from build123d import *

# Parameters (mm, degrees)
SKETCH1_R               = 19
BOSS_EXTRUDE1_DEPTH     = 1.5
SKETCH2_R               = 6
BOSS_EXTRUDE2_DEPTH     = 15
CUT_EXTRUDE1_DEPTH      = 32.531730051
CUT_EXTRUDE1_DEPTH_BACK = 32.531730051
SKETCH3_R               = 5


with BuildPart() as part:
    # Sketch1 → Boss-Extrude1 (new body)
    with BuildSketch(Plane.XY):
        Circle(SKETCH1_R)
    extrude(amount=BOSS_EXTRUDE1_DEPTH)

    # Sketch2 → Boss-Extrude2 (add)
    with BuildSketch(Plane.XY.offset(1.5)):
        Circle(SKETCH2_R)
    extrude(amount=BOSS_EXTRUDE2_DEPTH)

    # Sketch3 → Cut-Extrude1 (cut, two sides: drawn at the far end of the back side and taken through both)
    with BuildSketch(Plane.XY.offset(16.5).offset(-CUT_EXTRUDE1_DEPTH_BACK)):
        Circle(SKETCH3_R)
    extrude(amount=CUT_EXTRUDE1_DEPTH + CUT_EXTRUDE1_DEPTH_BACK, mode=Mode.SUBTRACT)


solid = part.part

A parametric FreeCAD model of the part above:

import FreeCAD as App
import Part
import Sketcher
from FreeCAD import Vector

doc = App.newDocument("Part")
body = doc.addObject("PartDesign::Body", "Body")

# Sketch on XY plane
sketch1 = doc.addObject("Sketcher::SketchObject", "Sketch")
body.addObject(sketch1)
sketch1.AttachmentSupport = (doc.XY_Plane, [""])
sketch1.MapMode = "FlatFace"
sketch1.addGeometry(Part.Circle(Vector(0, 0, 0), Vector(0, 0, 1), 19), False)
sketch1.addConstraint([
    Sketcher.Constraint("Coincident", 0, 3, -1, 1),
    Sketcher.Constraint("Diameter", 0, 38.0),
])
pad1 = doc.addObject("PartDesign::Pad", "Pad")
body.addObject(pad1)
pad1.Profile = sketch1
pad1.Length = 1.5

# Sketch on XY plane
sketch2 = doc.addObject("Sketcher::SketchObject", "Sketch001")
body.addObject(sketch2)
sketch2.AttachmentSupport = (doc.XY_Plane, [""])
sketch2.MapMode = "FlatFace"
sketch2.AttachmentOffset = App.Placement(Vector(0, 0, 1.5), App.Rotation())
sketch2.addGeometry(Part.Circle(Vector(0, 0, 0), Vector(0, 0, 1), 6), False)
sketch2.addConstraint([
    Sketcher.Constraint("Coincident", 0, 3, -1, 1),
    Sketcher.Constraint("Diameter", 0, 12.0),
])
pad2 = doc.addObject("PartDesign::Pad", "Pad001")
body.addObject(pad2)
pad2.Profile = sketch2
pad2.Length = 15

# Sketch on XY plane
sketch3 = doc.addObject("Sketcher::SketchObject", "Sketch002")
body.addObject(sketch3)
sketch3.AttachmentSupport = (doc.XY_Plane, [""])
sketch3.MapMode = "FlatFace"
sketch3.AttachmentOffset = App.Placement(Vector(0, 0, 16.5), App.Rotation())
sketch3.addGeometry(Part.Circle(Vector(0, 0, 0), Vector(0, 0, 1), 5), False)
sketch3.addConstraint([
    Sketcher.Constraint("Coincident", 0, 3, -1, 1),
    Sketcher.Constraint("Diameter", 0, 10.0),
])
pocket1 = doc.addObject("PartDesign::Pocket", "Pocket")
body.addObject(pocket1)
pocket1.Profile = sketch3
pocket1.Type = "ThroughAll"
pocket1.Midplane = True

doc.recompute()
